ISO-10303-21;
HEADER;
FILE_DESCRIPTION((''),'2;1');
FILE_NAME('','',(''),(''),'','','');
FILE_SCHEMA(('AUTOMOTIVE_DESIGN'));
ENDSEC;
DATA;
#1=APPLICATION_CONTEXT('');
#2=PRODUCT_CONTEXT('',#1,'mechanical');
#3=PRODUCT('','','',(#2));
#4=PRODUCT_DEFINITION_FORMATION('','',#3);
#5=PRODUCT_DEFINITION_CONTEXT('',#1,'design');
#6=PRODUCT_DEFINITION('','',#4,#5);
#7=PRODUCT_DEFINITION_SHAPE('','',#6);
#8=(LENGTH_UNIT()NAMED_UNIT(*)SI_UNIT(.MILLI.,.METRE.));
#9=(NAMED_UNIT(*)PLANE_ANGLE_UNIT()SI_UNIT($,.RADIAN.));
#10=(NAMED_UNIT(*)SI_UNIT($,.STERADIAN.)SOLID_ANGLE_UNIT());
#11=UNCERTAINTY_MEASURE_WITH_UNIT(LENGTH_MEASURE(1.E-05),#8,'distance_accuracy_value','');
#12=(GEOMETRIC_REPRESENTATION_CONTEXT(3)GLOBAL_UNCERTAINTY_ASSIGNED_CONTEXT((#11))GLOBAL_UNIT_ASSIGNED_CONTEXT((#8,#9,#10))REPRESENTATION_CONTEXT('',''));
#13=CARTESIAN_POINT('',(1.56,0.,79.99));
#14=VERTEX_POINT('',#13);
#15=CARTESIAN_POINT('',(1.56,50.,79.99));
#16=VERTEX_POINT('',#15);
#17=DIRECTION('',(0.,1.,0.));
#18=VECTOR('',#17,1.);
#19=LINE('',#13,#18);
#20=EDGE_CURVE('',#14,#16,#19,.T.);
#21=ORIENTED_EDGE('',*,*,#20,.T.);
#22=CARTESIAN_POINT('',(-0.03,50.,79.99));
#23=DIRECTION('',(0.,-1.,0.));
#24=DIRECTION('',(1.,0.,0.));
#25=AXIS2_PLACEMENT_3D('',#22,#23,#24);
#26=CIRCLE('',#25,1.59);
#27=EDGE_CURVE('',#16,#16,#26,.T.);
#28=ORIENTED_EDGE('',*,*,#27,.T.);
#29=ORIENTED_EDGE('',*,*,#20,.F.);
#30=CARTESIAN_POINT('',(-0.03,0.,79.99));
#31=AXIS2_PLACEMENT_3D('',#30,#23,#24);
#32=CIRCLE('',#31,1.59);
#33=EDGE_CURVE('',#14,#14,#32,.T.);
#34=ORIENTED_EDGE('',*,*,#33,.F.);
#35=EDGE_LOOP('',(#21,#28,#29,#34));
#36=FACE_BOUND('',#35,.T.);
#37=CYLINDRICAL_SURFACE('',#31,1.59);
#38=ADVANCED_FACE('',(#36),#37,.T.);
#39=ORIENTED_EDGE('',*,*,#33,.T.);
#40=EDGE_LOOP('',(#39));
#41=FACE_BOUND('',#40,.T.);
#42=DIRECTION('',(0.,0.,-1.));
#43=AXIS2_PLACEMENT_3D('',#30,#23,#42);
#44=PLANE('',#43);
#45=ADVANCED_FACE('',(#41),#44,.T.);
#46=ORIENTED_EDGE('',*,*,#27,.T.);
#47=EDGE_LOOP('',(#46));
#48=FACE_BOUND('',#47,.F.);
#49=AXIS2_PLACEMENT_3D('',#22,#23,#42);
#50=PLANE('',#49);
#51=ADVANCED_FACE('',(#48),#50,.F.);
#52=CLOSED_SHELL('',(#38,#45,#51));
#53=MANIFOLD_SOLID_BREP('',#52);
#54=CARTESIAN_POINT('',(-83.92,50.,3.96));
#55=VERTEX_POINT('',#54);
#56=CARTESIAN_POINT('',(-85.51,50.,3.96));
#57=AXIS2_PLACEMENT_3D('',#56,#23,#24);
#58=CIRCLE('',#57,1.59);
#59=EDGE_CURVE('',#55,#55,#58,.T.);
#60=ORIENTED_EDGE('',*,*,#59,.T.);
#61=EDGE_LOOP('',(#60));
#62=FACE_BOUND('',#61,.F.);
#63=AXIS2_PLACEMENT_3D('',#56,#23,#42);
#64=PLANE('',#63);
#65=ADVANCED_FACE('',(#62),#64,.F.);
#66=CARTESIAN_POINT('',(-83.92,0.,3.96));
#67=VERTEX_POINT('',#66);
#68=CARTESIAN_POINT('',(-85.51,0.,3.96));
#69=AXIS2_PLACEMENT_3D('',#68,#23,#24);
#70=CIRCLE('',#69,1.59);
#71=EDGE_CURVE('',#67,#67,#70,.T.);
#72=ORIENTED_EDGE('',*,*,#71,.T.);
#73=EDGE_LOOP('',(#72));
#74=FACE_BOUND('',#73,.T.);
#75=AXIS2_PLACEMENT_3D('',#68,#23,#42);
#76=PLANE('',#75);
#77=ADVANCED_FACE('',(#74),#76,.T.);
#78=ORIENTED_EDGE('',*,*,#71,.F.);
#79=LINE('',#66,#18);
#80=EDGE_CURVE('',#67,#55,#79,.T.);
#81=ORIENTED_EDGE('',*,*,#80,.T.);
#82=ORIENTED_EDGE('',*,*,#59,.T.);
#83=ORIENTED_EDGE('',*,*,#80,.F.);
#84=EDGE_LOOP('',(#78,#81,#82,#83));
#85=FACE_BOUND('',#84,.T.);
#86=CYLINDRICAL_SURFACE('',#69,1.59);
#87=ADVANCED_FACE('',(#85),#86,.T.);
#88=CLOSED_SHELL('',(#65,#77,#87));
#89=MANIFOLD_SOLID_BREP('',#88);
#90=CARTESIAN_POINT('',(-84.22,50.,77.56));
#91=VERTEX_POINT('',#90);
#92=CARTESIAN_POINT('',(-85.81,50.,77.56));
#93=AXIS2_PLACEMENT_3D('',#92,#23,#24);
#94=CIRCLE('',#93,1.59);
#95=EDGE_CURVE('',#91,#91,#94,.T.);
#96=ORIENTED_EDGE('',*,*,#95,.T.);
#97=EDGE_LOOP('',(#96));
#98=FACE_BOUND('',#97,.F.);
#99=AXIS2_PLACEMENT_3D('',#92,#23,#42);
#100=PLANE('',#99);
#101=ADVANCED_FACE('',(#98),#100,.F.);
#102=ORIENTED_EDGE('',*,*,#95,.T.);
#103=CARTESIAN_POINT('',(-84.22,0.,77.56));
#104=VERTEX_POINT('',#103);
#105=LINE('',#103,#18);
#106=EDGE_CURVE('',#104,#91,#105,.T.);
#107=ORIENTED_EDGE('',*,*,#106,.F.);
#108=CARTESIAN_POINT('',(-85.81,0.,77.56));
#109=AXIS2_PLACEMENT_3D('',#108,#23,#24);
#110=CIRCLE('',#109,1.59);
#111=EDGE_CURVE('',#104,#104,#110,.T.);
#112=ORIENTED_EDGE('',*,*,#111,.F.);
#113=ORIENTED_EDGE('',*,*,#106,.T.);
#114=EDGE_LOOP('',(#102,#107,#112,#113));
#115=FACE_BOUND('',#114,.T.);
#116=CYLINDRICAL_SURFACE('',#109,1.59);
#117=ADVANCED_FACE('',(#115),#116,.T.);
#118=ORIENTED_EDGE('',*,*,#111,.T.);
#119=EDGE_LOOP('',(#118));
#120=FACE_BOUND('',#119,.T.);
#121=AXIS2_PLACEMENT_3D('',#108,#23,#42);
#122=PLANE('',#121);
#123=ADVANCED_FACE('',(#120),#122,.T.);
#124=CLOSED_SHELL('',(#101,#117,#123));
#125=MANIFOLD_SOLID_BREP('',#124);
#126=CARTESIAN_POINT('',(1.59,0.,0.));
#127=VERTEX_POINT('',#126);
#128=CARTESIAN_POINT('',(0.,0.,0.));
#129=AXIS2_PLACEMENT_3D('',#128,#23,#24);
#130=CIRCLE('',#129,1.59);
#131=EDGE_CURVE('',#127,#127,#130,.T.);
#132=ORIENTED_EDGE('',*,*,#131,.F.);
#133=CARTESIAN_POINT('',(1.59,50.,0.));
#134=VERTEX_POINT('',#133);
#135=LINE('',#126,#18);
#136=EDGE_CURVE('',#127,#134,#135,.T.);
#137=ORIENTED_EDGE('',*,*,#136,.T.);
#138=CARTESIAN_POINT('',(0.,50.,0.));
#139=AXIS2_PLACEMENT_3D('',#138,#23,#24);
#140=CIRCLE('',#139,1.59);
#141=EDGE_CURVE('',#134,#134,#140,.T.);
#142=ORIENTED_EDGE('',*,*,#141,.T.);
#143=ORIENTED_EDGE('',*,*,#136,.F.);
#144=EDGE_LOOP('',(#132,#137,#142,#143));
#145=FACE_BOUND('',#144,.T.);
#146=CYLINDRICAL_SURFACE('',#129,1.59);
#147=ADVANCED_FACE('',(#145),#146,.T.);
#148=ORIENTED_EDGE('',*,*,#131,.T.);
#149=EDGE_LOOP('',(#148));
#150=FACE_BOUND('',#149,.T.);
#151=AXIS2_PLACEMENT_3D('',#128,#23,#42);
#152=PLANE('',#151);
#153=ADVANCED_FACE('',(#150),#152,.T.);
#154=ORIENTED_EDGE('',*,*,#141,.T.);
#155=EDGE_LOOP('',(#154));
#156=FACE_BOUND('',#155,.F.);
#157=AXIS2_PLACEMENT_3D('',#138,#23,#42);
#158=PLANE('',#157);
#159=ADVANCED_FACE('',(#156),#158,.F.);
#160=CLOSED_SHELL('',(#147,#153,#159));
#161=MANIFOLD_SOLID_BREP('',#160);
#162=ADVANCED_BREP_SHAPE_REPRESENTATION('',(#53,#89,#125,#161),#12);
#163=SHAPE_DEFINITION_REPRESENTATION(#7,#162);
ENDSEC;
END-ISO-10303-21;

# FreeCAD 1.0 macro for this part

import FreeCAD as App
import Part
import Sketcher
from FreeCAD import Vector

doc = App.newDocument("Part")
body = doc.addObject("PartDesign::Body", "Body")
body.AllowCompound = True

# Sketch on XZ plane
sketch1 = body.newObject("Sketcher::SketchObject", "Sketch")
sketch1.AttachmentSupport = (doc.getObject("XZ_Plane"), [""])
sketch1.MapMode = "FlatFace"
sketch1.addGeometry([
    Part.Circle(Vector(0, 0, 0), Vector(0, 0, 1), 1.6),
    Part.Circle(Vector(-85.8, 77.6, 0), Vector(0, 0, 1), 1.6),
    Part.Circle(Vector(0, 80, 0), Vector(0, 0, 1), 1.6),
    Part.Circle(Vector(-85.5, 4, 0), Vector(0, 0, 1), 1.6),
], False)
sketch1.addConstraint([
    Sketcher.Constraint("Coincident", 0, 3, -1, 1),
    Sketcher.Constraint("Equal", 0, 1),
    Sketcher.Constraint("Equal", 1, 2),
    Sketcher.Constraint("Equal", 2, 3),
    Sketcher.Constraint("Diameter", 0, 3.18),
    Sketcher.Constraint("DistanceX", 1, 3, 3, 3, 0.3),
    Sketcher.Constraint("DistanceY", 3, 3, 1, 3, 73.6),
    Sketcher.Constraint("DistanceX", 1, 3, -1, 1, 85.81),
    Sketcher.Constraint("DistanceY", -1, 1, 1, 3, 77.56),
    Sketcher.Constraint("DistanceX", 2, 3, -1, 1, 0.03),
    Sketcher.Constraint("DistanceY", -1, 1, 2, 3, 79.99),
])
pad1 = body.newObject("PartDesign::Pad", "Pad")
pad1.Profile = sketch1
pad1.Length = 50
pad1.Reversed = True

doc.recompute()
